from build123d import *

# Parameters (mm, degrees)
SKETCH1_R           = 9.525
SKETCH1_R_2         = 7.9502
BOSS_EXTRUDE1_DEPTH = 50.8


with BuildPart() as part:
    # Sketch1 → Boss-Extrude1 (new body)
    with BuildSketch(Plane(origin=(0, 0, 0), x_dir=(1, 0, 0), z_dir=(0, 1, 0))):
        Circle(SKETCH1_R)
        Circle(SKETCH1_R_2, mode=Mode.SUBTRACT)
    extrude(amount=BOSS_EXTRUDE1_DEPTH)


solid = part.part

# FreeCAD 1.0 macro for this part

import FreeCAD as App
import Part
import Sketcher

V = App.Vector
Q = App.Units.Quantity

doc = App.newDocument("Part")
body = doc.addObject("PartDesign::Body", "Body")

# Sketch on XZ plane
sketch1 = doc.addObject("Sketcher::SketchObject", "Sketch")
body.addObject(sketch1)
sketch1.AttachmentSupport = (doc.XZ_Plane, [""])
sketch1.MapMode = "FlatFace"
sketch1.addGeometry(Part.Circle(V(0, 0, 0), V(0, 0, 1), 9.525), False)
sketch1.addGeometry(Part.Circle(V(0, 0, 0), V(0, 0, 1), 7.9502), False)
sketch1.addConstraint(Sketcher.Constraint("Coincident", 0, 3, -1, 1))
sketch1.addConstraint(Sketcher.Constraint("Coincident", 1, 3, -1, 1))
sketch1.addConstraint(Sketcher.Constraint("Diameter", 0, Q("0.75 in")))
sketch1.addConstraint(Sketcher.Constraint("Diameter", 1, Q("0.626 in")))
pad1 = doc.addObject("PartDesign::Pad", "Pad")
body.addObject(pad1)
pad1.Profile = sketch1
pad1.Length = Q("2 in")
pad1.Reversed = True

doc.recompute()
